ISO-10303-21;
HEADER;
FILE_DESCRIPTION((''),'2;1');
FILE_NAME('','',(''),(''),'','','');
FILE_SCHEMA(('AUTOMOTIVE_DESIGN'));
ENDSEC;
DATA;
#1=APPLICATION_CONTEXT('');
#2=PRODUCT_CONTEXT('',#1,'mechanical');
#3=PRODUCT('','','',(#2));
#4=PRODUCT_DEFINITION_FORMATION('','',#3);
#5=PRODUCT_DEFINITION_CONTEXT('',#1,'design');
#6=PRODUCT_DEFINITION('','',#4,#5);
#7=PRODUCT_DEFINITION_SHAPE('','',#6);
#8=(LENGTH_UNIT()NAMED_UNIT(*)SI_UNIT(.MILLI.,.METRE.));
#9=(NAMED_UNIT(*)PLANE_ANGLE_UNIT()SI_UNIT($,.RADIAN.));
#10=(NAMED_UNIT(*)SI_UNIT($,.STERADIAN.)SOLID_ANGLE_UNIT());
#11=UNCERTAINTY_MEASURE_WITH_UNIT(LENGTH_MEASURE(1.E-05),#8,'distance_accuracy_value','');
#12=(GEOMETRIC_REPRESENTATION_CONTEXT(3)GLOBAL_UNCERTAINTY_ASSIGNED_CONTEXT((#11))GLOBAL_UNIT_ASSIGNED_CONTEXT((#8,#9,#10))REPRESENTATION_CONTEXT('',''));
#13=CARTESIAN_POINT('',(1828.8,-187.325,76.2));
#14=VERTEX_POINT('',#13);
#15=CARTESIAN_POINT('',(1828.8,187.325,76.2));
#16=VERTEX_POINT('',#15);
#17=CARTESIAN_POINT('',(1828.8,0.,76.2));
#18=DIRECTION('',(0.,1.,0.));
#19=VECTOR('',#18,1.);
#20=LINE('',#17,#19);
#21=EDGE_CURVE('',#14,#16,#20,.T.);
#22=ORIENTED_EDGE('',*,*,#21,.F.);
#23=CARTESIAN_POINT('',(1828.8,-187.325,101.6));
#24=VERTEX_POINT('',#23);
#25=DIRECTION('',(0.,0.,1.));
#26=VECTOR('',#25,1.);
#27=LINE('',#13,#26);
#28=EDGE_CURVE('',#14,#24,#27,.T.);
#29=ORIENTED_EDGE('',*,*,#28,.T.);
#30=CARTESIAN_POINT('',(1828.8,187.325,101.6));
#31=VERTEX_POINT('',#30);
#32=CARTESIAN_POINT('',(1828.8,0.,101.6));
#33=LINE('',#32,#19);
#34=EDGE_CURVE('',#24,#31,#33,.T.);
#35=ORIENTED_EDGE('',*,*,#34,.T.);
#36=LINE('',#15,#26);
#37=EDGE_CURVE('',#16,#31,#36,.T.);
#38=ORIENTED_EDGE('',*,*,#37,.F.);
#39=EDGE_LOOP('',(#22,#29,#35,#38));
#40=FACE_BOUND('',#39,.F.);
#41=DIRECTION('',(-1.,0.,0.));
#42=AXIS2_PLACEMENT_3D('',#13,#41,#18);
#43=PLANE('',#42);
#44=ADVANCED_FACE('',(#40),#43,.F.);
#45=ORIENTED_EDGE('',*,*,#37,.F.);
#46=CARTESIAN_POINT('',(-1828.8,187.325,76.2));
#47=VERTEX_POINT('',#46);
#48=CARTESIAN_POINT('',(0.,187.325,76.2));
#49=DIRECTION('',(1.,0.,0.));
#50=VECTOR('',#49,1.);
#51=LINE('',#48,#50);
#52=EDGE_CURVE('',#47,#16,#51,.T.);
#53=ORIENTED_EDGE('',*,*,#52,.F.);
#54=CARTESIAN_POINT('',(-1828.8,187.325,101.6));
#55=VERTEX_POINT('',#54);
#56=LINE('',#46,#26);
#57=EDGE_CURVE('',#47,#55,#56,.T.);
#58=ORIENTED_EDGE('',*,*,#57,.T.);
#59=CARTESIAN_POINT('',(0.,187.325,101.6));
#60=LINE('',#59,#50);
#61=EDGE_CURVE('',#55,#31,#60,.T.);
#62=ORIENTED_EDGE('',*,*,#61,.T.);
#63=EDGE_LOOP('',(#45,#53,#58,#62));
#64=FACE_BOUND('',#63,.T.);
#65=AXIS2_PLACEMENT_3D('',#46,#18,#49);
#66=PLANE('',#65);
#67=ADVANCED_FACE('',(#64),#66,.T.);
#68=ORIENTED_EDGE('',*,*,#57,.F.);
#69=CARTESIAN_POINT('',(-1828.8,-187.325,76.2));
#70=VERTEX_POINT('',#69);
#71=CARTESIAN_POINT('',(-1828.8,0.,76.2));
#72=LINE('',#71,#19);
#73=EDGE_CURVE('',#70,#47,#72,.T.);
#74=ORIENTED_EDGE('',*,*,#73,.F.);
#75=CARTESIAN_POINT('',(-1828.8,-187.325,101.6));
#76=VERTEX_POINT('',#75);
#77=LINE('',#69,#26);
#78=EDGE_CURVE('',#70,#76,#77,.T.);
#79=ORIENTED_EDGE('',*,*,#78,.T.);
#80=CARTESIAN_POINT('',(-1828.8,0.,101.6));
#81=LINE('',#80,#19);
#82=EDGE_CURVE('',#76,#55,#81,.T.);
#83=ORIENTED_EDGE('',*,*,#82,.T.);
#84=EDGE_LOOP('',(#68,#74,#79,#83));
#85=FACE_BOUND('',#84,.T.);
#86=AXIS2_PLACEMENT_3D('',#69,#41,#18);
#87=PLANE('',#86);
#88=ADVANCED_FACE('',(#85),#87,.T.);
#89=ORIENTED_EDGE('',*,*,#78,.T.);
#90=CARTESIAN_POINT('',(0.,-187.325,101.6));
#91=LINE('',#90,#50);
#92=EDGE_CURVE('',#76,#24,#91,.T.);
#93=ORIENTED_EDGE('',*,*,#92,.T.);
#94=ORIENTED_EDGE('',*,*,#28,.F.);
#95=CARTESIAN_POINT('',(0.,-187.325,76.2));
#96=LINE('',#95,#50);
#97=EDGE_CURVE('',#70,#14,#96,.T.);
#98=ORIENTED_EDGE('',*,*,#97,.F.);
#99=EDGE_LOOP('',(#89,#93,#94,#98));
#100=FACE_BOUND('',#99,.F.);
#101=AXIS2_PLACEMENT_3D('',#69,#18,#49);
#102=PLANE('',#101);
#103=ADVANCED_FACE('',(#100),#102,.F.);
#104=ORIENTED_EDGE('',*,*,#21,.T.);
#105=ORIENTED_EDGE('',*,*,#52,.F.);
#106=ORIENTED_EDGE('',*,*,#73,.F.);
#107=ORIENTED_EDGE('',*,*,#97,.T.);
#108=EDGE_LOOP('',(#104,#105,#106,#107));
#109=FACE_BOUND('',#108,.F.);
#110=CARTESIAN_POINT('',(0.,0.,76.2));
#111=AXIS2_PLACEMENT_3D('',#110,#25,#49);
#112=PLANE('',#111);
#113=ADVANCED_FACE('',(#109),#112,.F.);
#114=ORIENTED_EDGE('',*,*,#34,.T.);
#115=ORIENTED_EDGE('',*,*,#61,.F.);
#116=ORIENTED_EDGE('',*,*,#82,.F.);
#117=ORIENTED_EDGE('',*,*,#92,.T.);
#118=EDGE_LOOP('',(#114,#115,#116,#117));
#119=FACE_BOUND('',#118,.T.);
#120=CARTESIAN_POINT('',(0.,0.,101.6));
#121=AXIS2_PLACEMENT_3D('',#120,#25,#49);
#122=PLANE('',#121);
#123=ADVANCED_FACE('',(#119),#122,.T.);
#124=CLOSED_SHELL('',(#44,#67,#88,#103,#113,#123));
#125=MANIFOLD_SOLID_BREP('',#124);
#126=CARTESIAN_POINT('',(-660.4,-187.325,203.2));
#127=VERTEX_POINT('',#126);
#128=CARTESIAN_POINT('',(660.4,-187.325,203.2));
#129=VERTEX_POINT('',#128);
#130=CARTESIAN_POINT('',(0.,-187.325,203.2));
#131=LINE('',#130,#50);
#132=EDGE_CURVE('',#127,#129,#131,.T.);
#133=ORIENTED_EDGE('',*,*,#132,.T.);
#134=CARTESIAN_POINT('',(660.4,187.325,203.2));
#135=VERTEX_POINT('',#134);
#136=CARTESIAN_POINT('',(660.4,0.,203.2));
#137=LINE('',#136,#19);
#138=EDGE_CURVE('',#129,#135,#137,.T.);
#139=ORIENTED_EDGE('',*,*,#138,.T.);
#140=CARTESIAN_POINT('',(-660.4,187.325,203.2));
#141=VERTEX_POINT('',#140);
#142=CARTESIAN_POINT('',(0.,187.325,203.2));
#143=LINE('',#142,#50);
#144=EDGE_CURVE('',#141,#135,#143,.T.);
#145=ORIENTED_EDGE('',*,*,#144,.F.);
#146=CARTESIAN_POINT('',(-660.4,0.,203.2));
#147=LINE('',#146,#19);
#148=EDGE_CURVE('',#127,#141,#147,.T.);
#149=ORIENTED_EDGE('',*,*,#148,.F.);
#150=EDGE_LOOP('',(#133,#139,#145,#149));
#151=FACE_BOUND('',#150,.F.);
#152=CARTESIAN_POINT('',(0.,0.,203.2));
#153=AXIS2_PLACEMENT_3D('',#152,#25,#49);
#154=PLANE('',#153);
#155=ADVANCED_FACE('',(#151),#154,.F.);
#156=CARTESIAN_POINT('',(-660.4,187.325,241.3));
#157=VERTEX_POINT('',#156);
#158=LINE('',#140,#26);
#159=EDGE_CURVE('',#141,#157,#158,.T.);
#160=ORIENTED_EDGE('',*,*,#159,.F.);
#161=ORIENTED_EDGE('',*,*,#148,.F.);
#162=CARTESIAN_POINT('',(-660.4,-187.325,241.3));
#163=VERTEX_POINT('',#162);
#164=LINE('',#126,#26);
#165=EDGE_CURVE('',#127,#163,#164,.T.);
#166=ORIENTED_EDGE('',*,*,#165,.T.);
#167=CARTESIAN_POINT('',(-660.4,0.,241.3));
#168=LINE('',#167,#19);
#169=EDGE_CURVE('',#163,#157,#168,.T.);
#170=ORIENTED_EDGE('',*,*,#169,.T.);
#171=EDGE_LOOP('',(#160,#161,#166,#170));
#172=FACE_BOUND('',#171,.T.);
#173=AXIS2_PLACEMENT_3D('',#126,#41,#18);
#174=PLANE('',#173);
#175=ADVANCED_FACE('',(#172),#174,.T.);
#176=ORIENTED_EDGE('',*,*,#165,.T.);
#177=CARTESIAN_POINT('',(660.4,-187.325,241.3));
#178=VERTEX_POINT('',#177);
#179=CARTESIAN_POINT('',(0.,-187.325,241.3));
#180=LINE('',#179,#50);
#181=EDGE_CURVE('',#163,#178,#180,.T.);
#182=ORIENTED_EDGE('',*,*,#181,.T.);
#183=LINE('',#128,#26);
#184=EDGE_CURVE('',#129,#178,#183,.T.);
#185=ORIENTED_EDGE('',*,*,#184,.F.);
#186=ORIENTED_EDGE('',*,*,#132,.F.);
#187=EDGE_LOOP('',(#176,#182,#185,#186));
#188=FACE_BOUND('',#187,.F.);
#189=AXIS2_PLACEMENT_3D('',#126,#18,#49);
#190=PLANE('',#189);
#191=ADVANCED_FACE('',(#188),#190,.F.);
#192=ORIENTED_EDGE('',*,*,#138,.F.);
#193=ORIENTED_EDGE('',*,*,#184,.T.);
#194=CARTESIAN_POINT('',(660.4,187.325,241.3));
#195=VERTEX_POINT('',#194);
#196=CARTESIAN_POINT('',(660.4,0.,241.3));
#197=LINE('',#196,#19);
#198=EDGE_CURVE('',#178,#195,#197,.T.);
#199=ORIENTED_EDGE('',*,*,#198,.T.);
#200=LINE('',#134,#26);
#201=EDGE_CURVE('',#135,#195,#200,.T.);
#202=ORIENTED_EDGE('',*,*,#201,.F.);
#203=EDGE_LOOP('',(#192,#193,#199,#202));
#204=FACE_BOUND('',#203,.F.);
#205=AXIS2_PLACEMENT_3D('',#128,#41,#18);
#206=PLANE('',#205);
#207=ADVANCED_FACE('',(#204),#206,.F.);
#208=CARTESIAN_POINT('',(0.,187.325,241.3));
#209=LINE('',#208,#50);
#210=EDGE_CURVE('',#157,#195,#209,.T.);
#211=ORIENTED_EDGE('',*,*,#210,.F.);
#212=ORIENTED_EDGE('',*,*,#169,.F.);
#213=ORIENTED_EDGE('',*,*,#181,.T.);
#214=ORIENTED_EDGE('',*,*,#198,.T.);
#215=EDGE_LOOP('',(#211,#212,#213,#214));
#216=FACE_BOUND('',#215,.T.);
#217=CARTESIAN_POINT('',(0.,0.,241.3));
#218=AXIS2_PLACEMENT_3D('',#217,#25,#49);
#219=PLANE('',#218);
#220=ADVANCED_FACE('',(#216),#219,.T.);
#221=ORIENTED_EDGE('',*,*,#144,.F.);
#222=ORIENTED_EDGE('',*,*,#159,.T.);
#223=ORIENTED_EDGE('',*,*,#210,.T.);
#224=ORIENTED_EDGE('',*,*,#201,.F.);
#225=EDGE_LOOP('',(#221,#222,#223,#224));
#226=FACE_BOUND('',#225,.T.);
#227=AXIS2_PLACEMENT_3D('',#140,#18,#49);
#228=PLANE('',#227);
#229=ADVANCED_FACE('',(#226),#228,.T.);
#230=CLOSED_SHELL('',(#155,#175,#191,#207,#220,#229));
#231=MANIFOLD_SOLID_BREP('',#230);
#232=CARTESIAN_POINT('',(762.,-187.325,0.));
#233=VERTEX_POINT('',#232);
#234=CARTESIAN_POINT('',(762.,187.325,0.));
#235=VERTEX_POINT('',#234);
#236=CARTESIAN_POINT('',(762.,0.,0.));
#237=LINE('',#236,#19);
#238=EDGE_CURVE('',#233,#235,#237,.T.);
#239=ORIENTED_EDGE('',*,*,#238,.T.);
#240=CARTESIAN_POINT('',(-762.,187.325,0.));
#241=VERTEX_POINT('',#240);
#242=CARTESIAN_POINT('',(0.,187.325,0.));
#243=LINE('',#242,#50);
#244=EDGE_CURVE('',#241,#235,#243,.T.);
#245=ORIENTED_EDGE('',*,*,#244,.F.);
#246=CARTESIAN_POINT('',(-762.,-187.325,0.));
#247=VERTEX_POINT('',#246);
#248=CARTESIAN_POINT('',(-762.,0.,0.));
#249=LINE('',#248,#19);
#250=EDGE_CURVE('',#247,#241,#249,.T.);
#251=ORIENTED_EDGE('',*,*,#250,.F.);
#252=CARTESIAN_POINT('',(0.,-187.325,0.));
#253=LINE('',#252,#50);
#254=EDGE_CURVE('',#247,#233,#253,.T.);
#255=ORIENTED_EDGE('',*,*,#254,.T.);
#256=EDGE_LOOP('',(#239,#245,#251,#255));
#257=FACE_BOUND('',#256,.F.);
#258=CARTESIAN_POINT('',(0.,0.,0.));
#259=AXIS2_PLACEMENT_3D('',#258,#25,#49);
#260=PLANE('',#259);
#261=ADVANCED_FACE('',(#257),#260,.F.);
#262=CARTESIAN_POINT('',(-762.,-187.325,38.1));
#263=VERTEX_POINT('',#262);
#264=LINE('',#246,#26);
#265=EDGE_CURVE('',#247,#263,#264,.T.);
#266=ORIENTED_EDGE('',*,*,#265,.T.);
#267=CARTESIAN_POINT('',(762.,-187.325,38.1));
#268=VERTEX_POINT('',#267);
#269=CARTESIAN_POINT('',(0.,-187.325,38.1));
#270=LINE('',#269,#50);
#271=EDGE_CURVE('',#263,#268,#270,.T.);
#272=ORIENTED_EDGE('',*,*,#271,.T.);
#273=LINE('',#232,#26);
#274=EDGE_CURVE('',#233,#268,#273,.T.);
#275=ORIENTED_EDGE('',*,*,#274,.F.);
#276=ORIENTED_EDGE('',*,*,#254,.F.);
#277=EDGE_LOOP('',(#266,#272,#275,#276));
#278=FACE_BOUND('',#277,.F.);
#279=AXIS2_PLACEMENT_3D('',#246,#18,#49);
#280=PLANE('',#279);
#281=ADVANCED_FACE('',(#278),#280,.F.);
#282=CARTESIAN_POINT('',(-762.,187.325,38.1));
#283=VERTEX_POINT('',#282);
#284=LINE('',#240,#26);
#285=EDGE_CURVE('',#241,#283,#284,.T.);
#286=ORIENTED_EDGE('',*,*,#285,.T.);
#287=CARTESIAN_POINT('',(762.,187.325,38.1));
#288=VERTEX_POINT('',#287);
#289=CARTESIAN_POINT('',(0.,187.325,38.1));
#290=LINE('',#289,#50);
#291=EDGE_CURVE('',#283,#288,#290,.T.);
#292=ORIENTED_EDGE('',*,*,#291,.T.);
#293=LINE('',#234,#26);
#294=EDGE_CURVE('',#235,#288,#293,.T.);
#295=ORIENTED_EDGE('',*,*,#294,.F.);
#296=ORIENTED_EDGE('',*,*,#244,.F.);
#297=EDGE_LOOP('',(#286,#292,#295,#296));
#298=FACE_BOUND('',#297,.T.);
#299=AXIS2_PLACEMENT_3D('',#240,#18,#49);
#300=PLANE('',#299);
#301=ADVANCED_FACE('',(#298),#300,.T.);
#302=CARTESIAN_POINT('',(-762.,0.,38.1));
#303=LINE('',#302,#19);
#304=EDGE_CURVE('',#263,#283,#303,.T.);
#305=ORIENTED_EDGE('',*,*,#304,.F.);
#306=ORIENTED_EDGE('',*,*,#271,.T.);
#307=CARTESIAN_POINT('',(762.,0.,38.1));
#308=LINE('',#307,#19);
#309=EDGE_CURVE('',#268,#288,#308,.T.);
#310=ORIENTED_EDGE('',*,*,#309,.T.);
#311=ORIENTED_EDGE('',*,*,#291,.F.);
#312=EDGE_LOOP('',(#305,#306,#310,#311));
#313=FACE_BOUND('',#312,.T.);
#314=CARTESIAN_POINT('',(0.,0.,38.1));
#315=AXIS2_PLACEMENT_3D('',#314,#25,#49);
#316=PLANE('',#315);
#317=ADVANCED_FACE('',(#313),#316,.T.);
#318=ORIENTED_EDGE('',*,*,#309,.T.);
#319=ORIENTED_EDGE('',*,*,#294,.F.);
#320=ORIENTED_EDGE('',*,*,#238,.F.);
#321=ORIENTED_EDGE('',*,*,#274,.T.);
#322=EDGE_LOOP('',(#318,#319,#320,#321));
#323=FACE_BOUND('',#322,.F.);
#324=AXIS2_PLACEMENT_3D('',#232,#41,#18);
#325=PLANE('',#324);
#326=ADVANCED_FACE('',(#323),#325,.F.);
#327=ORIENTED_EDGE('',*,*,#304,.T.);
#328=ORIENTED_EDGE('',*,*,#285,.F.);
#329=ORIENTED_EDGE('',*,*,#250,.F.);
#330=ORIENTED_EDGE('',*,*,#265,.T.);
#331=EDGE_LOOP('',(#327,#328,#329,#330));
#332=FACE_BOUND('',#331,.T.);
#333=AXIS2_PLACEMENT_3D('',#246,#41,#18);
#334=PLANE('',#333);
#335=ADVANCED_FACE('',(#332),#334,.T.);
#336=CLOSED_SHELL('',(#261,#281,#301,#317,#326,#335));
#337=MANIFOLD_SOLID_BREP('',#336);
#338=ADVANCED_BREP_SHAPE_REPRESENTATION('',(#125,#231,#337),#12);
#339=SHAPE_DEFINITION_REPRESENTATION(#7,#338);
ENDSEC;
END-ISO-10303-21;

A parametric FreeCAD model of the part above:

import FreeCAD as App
import Part
import Sketcher

V = App.Vector
Q = App.Units.Quantity

doc = App.newDocument("Part")
body = doc.addObject("PartDesign::Body", "Body")

# Sketch on XY plane
sketch1 = body.newObject("Sketcher::SketchObject", "Sketch")
sketch1.AttachmentSupport = (doc.getObject("XY_Plane"), [""])
sketch1.MapMode = "FlatFace"
sketch1.addGeometry(Part.LineSegment(V(-762, 187.325, 0), V(-762, -187.325, 0)), False)
sketch1.addGeometry(Part.LineSegment(V(-762, -187.325, 0), V(762, -187.325, 0)), False)
sketch1.addGeometry(Part.LineSegment(V(762, -187.325, 0), V(762, 187.325, 0)), False)
sketch1.addGeometry(Part.LineSegment(V(762, 187.325, 0), V(-762, 187.325, 0)), False)
sketch1.addConstraint(Sketcher.Constraint("Coincident", 0, 2, 1, 1))
sketch1.addConstraint(Sketcher.Constraint("Coincident", 1, 2, 2, 1))
sketch1.addConstraint(Sketcher.Constraint("Coincident", 2, 2, 3, 1))
sketch1.addConstraint(Sketcher.Constraint("Coincident", 3, 2, 0, 1))
sketch1.addConstraint(Sketcher.Constraint("Vertical", 0))
sketch1.addConstraint(Sketcher.Constraint("Horizontal", 1))
sketch1.addConstraint(Sketcher.Constraint("Vertical", 2))
sketch1.addConstraint(Sketcher.Constraint("Horizontal", 3))
sketch1.addConstraint(Sketcher.Constraint("Symmetric", 0, 2, 2, 2, -1, 1))
sketch1.addConstraint(Sketcher.Constraint("DistanceX", 1, 1, 1, 2, Q("60 in")))
sketch1.addConstraint(Sketcher.Constraint("DistanceY", 0, 2, 0, 1, Q("14.75 in")))
pad1 = body.newObject("PartDesign::Pad", "Pad")
pad1.Profile = sketch1
pad1.Length = Q("1.5 in")
body2 = doc.addObject("PartDesign::Body", "Body001")

# Sketch on XY plane
sketch2 = body2.newObject("Sketcher::SketchObject", "Sketch001")
sketch2.AttachmentSupport = (doc.getObject("XY_Plane001"), [""])
sketch2.MapMode = "FlatFace"
sketch2.AttachmentOffset = App.Placement(V(0, 0, 3 * 25.4), App.Rotation())
sketch2.addGeometry(Part.LineSegment(V(-1828.8, 187.325, 0), V(-1828.8, -187.325, 0)), False)
sketch2.addGeometry(Part.LineSegment(V(-1828.8, -187.325, 0), V(1828.8, -187.325, 0)), False)
sketch2.addGeometry(Part.LineSegment(V(1828.8, -187.325, 0), V(1828.8, 187.325, 0)), False)
sketch2.addGeometry(Part.LineSegment(V(1828.8, 187.325, 0), V(-1828.8, 187.325, 0)), False)
sketch2.addConstraint(Sketcher.Constraint("Coincident", 0, 2, 1, 1))
sketch2.addConstraint(Sketcher.Constraint("Coincident", 1, 2, 2, 1))
sketch2.addConstraint(Sketcher.Constraint("Coincident", 2, 2, 3, 1))
sketch2.addConstraint(Sketcher.Constraint("Coincident", 3, 2, 0, 1))
sketch2.addConstraint(Sketcher.Constraint("Vertical", 0))
sketch2.addConstraint(Sketcher.Constraint("Horizontal", 1))
sketch2.addConstraint(Sketcher.Constraint("Vertical", 2))
sketch2.addConstraint(Sketcher.Constraint("Horizontal", 3))
sketch2.addConstraint(Sketcher.Constraint("Symmetric", 0, 2, 2, 2, -1, 1))
sketch2.addConstraint(Sketcher.Constraint("DistanceX", 1, 1, 1, 2, Q("144 in")))
sketch2.addConstraint(Sketcher.Constraint("DistanceY", 0, 2, 0, 1, Q("14.75 in")))
pad2 = body2.newObject("PartDesign::Pad", "Pad001")
pad2.Profile = sketch2
pad2.Length = Q("1 in")
body3 = doc.addObject("PartDesign::Body", "Body002")

# Sketch on XY plane
sketch3 = body3.newObject("Sketcher::SketchObject", "Sketch002")
sketch3.AttachmentSupport = (doc.getObject("XY_Plane002"), [""])
sketch3.MapMode = "FlatFace"
sketch3.AttachmentOffset = App.Placement(V(0, 0, 8 * 25.4), App.Rotation())
sketch3.addGeometry(Part.LineSegment(V(-660.4, 187.325, 0), V(-660.4, -187.325, 0)), False)
sketch3.addGeometry(Part.LineSegment(V(-660.4, -187.325, 0), V(660.4, -187.325, 0)), False)
sketch3.addGeometry(Part.LineSegment(V(660.4, -187.325, 0), V(660.4, 187.325, 0)), False)
sketch3.addGeometry(Part.LineSegment(V(660.4, 187.325, 0), V(-660.4, 187.325, 0)), False)
sketch3.addConstraint(Sketcher.Constraint("Coincident", 0, 2, 1, 1))
sketch3.addConstraint(Sketcher.Constraint("Coincident", 1, 2, 2, 1))
sketch3.addConstraint(Sketcher.Constraint("Coincident", 2, 2, 3, 1))
sketch3.addConstraint(Sketcher.Constraint("Coincident", 3, 2, 0, 1))
sketch3.addConstraint(Sketcher.Constraint("Vertical", 0))
sketch3.addConstraint(Sketcher.Constraint("Horizontal", 1))
sketch3.addConstraint(Sketcher.Constraint("Vertical", 2))
sketch3.addConstraint(Sketcher.Constraint("Horizontal", 3))
sketch3.addConstraint(Sketcher.Constraint("Symmetric", 0, 2, 2, 2, -1, 1))
sketch3.addConstraint(Sketcher.Constraint("DistanceX", 1, 1, 1, 2, Q("52 in")))
sketch3.addConstraint(Sketcher.Constraint("DistanceY", 0, 2, 0, 1, Q("14.75 in")))
pad3 = body3.newObject("PartDesign::Pad", "Pad002")
pad3.Profile = sketch3
pad3.Length = Q("1.5 in")

doc.recompute()
